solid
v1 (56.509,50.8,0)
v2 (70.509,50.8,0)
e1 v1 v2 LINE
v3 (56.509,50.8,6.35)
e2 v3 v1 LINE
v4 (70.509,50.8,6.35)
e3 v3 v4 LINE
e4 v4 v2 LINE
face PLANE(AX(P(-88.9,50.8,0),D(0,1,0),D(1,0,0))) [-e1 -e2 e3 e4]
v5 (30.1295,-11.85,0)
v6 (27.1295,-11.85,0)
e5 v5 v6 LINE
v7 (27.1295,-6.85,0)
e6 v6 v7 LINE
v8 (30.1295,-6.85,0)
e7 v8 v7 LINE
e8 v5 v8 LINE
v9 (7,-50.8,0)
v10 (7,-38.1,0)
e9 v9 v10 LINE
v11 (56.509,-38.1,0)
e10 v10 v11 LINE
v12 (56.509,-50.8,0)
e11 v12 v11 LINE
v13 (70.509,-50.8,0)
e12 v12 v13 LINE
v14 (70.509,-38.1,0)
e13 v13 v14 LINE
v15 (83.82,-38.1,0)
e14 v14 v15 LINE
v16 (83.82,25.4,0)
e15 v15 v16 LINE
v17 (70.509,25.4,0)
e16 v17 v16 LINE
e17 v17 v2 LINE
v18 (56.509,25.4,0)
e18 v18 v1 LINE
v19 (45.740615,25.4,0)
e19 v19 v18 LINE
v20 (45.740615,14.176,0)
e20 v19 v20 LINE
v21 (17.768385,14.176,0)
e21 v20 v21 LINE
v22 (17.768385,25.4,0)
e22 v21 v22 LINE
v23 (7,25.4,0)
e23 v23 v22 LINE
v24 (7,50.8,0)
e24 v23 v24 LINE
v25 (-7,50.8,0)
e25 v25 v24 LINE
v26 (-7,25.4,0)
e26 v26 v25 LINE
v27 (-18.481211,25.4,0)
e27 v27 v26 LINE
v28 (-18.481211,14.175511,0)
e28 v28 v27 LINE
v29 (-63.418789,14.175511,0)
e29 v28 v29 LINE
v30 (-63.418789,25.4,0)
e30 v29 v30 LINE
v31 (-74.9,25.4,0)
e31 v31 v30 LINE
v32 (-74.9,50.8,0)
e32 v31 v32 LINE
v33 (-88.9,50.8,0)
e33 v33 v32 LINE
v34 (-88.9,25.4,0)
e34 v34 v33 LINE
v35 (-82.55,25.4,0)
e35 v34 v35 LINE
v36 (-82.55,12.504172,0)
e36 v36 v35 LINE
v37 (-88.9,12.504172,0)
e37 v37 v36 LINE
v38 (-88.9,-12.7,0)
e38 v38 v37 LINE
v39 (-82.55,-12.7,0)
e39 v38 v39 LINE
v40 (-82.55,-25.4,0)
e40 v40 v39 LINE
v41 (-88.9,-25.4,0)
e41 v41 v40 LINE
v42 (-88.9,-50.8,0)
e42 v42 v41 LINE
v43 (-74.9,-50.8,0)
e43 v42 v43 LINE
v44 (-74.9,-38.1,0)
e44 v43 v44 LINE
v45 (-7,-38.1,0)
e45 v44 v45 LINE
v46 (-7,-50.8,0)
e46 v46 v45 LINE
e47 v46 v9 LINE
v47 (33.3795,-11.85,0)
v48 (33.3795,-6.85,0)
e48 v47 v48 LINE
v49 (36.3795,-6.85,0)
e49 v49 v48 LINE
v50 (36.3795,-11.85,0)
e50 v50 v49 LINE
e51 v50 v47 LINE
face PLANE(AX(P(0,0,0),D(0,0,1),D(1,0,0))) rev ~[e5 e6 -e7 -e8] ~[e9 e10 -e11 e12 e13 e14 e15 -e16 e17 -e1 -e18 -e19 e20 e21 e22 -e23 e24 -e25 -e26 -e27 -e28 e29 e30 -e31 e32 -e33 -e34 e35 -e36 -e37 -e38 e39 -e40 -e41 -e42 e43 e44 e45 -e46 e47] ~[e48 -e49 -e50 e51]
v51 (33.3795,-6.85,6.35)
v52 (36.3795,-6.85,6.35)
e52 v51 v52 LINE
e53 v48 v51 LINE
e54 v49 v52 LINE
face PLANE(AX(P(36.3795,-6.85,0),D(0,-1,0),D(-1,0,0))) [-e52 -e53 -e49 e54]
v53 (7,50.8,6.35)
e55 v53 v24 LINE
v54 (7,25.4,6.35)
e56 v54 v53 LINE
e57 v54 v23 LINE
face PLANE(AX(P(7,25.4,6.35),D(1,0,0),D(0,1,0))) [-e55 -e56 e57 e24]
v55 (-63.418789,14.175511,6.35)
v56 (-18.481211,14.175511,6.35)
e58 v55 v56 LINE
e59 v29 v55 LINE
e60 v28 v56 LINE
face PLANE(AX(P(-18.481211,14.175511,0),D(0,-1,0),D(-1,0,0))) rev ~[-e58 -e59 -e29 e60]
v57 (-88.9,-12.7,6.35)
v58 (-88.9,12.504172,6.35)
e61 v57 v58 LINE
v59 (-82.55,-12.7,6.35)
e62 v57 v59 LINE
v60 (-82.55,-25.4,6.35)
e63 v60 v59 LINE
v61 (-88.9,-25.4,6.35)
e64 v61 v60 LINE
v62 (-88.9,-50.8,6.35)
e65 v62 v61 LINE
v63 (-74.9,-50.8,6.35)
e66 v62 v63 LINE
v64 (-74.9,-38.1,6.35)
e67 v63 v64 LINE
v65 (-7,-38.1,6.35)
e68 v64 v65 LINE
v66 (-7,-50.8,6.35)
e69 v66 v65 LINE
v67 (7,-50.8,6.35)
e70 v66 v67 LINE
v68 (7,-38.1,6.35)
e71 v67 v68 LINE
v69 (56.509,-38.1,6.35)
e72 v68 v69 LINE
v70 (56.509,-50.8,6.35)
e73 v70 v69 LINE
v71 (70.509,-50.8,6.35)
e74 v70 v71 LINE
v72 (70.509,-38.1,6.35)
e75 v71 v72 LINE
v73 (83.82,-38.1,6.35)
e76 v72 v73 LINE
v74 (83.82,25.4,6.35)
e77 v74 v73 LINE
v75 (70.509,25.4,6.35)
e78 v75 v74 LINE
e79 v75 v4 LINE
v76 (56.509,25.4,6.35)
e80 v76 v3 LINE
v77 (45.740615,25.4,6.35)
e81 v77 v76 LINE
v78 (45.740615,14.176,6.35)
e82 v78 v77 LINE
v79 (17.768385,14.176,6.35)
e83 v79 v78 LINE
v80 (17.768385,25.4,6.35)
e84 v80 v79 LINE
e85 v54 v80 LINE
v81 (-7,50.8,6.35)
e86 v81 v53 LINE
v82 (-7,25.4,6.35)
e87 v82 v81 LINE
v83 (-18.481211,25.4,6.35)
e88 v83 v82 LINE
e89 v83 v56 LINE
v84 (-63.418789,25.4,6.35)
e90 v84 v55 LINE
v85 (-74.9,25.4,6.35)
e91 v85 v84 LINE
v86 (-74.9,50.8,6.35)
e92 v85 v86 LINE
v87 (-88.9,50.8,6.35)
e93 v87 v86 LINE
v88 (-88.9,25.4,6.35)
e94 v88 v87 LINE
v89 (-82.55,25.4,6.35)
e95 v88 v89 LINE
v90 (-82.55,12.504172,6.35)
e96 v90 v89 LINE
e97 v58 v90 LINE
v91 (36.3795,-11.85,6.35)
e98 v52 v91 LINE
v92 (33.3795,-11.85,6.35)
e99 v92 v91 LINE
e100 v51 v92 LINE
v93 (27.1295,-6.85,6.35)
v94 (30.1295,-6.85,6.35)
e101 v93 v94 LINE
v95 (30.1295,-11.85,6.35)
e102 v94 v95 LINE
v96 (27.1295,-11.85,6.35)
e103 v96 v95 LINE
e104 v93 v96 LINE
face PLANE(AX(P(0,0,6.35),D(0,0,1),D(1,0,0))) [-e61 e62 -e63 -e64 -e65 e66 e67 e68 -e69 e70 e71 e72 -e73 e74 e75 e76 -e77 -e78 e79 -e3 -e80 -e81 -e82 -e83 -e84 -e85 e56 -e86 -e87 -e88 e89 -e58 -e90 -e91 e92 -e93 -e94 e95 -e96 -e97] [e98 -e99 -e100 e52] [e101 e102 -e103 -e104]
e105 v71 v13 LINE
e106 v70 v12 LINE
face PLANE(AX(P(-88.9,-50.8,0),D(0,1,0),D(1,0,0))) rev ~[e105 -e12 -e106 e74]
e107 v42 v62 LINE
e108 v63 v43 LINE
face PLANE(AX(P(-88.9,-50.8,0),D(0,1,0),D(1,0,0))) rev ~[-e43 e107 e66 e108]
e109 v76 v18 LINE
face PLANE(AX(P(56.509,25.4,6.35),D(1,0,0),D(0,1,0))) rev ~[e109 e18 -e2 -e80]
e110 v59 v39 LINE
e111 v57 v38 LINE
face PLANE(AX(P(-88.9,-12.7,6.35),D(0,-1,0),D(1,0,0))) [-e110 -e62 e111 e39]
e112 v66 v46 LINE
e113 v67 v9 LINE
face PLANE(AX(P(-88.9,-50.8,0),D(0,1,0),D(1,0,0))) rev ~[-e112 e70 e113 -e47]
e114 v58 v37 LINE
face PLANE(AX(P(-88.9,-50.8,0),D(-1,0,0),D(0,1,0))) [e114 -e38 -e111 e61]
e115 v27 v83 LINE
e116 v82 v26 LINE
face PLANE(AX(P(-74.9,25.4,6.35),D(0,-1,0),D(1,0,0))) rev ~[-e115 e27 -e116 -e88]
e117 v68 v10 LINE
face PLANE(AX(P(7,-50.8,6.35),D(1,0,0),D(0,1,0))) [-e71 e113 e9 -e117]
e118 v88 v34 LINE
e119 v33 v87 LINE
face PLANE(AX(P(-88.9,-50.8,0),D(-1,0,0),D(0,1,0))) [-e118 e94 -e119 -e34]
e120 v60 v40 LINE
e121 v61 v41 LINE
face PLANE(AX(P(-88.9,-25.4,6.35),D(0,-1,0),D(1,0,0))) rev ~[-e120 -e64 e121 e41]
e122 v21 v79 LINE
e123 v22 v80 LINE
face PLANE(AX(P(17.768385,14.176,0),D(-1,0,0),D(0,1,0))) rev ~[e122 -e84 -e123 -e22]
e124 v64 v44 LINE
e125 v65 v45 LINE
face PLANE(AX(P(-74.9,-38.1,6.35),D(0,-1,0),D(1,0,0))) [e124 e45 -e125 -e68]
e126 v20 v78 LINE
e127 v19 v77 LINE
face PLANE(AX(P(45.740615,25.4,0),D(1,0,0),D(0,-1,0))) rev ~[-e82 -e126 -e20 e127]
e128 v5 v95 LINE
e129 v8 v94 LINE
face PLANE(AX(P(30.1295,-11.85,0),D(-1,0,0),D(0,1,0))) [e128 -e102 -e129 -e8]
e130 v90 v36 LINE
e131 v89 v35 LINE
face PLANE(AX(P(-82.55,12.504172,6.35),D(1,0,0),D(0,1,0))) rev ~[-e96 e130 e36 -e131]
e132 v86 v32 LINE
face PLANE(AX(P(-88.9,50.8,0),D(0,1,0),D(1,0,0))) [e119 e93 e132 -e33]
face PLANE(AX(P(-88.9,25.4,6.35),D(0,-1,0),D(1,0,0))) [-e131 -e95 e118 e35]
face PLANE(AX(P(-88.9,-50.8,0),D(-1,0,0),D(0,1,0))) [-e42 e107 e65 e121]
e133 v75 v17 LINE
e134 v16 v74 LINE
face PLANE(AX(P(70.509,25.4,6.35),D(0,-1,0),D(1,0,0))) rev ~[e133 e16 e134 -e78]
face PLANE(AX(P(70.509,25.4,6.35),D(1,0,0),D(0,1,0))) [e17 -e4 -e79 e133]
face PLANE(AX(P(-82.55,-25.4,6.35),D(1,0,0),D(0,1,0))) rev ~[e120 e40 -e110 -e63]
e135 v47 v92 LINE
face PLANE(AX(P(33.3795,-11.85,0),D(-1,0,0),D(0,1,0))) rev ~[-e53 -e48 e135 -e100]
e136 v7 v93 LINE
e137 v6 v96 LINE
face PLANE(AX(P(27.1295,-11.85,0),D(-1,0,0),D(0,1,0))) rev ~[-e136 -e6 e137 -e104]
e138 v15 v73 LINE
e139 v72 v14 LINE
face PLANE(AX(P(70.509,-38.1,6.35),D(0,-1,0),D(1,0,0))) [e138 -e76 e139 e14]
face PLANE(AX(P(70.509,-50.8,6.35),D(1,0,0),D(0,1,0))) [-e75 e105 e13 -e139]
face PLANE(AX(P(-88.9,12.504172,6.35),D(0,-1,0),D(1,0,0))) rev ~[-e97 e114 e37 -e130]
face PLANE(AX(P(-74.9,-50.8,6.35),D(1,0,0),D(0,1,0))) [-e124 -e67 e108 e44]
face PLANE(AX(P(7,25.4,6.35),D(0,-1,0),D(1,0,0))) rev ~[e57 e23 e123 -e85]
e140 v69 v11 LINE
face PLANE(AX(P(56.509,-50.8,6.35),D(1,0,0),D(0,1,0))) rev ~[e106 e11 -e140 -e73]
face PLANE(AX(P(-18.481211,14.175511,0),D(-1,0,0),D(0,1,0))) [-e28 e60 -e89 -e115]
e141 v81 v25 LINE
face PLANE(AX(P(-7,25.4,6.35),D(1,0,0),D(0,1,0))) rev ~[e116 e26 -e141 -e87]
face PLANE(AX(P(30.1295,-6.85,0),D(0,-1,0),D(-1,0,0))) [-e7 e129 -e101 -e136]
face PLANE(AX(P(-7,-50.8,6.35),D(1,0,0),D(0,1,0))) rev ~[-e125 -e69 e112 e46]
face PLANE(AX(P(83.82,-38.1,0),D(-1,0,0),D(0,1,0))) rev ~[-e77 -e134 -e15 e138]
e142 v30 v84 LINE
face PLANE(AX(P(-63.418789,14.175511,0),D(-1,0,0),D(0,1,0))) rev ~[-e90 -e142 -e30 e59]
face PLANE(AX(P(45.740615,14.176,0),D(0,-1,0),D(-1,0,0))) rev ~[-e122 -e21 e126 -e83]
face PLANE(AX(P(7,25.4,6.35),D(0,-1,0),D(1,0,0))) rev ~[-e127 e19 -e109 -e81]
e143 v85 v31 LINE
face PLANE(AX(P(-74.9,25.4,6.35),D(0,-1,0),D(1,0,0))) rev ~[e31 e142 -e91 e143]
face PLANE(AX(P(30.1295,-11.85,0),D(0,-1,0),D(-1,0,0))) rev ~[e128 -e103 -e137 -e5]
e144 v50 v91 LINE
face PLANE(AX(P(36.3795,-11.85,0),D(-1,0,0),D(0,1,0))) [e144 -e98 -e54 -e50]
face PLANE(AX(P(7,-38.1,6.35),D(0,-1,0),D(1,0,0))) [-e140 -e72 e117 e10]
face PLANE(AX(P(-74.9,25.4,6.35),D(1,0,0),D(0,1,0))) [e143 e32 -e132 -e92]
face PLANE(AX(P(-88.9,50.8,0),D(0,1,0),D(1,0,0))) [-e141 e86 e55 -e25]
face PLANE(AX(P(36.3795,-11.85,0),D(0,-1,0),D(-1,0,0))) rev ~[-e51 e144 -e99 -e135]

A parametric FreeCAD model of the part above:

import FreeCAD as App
import Part
import Sketcher
Q = App.Units.Quantity


def add_polygon(sketch, points):
    """Adds a closed chain of lines whose ends are joined by coincident constraints."""
    first, n = sketch.GeometryCount, len(points)
    for a, b in zip(points, points[1:] + points[:1]):
        sketch.addGeometry(Part.LineSegment(App.Vector(*a, 0), App.Vector(*b, 0)), False)
    for i in range(n):
        sketch.addConstraint(Sketcher.Constraint("Coincident", first + i, 2, first + (i + 1) % n, 1))

doc = App.newDocument("Part")
body = doc.addObject("PartDesign::Body", "Body")

# Sketch on XY plane
sketch1 = doc.addObject("Sketcher::SketchObject", "Sketch")
body.addObject(sketch1)
sketch1.AttachmentSupport = (doc.XY_Plane, [""])
sketch1.MapMode = "FlatFace"
add_polygon(sketch1, [(-88.9, 50.8), (-88.9, -50.8), (88.9, -50.8), (88.9, 50.8)])  # lines 0-3
sketch1.addConstraint(Sketcher.Constraint("Vertical", 0))
sketch1.addConstraint(Sketcher.Constraint("Horizontal", 1))
sketch1.addConstraint(Sketcher.Constraint("Vertical", 2))
sketch1.addConstraint(Sketcher.Constraint("Horizontal", 3))
sketch1.addConstraint(Sketcher.Constraint("Symmetric", 0, 2, 2, 2, -1, 1))
sketch1.addConstraint(Sketcher.Constraint("DistanceX", 1, 1, 1, 2, Q("7 in")))
sketch1.addConstraint(Sketcher.Constraint("DistanceY", 0, 2, 0, 1, Q("4 in")))
pad1 = doc.addObject("PartDesign::Pad", "Pad")
body.addObject(pad1)
pad1.Profile = sketch1
pad1.Length = Q("0.25 in")

# Sketch on XY plane
sketch2 = doc.addObject("Sketcher::SketchObject", "Sketch001")
body.addObject(sketch2)
sketch2.AttachmentSupport = (doc.XY_Plane, [""])
sketch2.MapMode = "FlatFace"
sketch2.AttachmentOffset = App.Placement(App.Vector(0, 0, 0.25 * 25.4), App.Rotation())
add_polygon(sketch2, [(-88.9, 25.4), (-88.9, 12.504172), (-82.55, 12.504172), (-82.55, 25.4)])  # lines 0-3
add_polygon(sketch2, [(-74.9, 50.8), (-74.9, 25.4), (-7, 25.4), (-7, 50.8)])  # lines 4-7
add_polygon(sketch2, [(-88.9, -12.7), (-88.9, -25.4), (-82.55, -25.4), (-82.55, -12.7)])  # lines 8-11
add_polygon(sketch2, [(7, 50.8), (7, 25.4), (56.509, 25.4), (56.509, 50.8)])  # lines 12-15
add_polygon(sketch2, [(70.509, 50.8), (70.509, 25.4), (88.9, 25.4), (88.9, 50.8)])  # lines 16-19
add_polygon(sketch2, [(-74.9, -38.1), (-74.9, -50.8), (-7, -50.8), (-7, -38.1)])  # lines 20-23
add_polygon(sketch2, [(7, -38.1), (7, -50.8), (56.509, -50.8), (56.509, -38.1)])  # lines 24-27
add_polygon(sketch2, [(70.509, -38.1), (70.509, -50.8), (88.9, -50.8), (88.9, -38.1)])  # lines 28-31
sketch2.addConstraint(Sketcher.Constraint("Vertical", 0))
sketch2.addConstraint(Sketcher.Constraint("Horizontal", 1))
sketch2.addConstraint(Sketcher.Constraint("Vertical", 2))
sketch2.addConstraint(Sketcher.Constraint("Horizontal", 3))
sketch2.addConstraint(Sketcher.Constraint("Vertical", 4))
sketch2.addConstraint(Sketcher.Constraint("Horizontal", 5))
sketch2.addConstraint(Sketcher.Constraint("Vertical", 6))
sketch2.addConstraint(Sketcher.Constraint("Horizontal", 7))
sketch2.addConstraint(Sketcher.Constraint("Vertical", 8))
sketch2.addConstraint(Sketcher.Constraint("Horizontal", 9))
sketch2.addConstraint(Sketcher.Constraint("Vertical", 10))
sketch2.addConstraint(Sketcher.Constraint("Horizontal", 11))
sketch2.addConstraint(Sketcher.Constraint("Vertical", 12))
sketch2.addConstraint(Sketcher.Constraint("Horizontal", 13))
sketch2.addConstraint(Sketcher.Constraint("Vertical", 14))
sketch2.addConstraint(Sketcher.Constraint("Horizontal", 15))
sketch2.addConstraint(Sketcher.Constraint("Vertical", 16))
sketch2.addConstraint(Sketcher.Constraint("Horizontal", 17))
sketch2.addConstraint(Sketcher.Constraint("Vertical", 18))
sketch2.addConstraint(Sketcher.Constraint("Horizontal", 19))
sketch2.addConstraint(Sketcher.Constraint("Vertical", 20))
sketch2.addConstraint(Sketcher.Constraint("Horizontal", 21))
sketch2.addConstraint(Sketcher.Constraint("Vertical", 22))
sketch2.addConstraint(Sketcher.Constraint("Horizontal", 23))
sketch2.addConstraint(Sketcher.Constraint("Vertical", 24))
sketch2.addConstraint(Sketcher.Constraint("Horizontal", 25))
sketch2.addConstraint(Sketcher.Constraint("Vertical", 26))
sketch2.addConstraint(Sketcher.Constraint("Horizontal", 27))
sketch2.addConstraint(Sketcher.Constraint("Vertical", 28))
sketch2.addConstraint(Sketcher.Constraint("Horizontal", 29))
sketch2.addConstraint(Sketcher.Constraint("Vertical", 30))
sketch2.addConstraint(Sketcher.Constraint("Horizontal", 31))
sketch2.addConstraint(Sketcher.Constraint("Symmetric", 8, 2, 17, 2, -1, 1))
sketch2.addConstraint(Sketcher.Constraint("Symmetric", 15, 2, 21, 2, -1, 1))
sketch2.addConstraint(Sketcher.Constraint("Symmetric", 6, 2, 24, 2, -1, 1))
sketch2.addConstraint(Sketcher.Constraint("Symmetric", 5, 2, 12, 2, -2))
sketch2.addConstraint(Sketcher.Constraint("Symmetric", 3, 2, 17, 2, -2))
sketch2.addConstraint(Sketcher.Constraint("Symmetric", 7, 2, 20, 2, -1))
sketch2.addConstraint(Sketcher.Constraint("Symmetric", 19, 2, 28, 2, -1))
sketch2.addConstraint(Sketcher.Constraint("Horizontal", 3, 2, 4, 2))
sketch2.addConstraint(Sketcher.Constraint("Horizontal", 15, 2, 18, 2))
sketch2.addConstraint(Sketcher.Constraint("Horizontal", 23, 2, 26, 2))
sketch2.addConstraint(Sketcher.Constraint("Horizontal", 27, 2, 30, 2))
sketch2.addConstraint(Sketcher.Constraint("Vertical", 2, 2, 9, 2))
sketch2.addConstraint(Sketcher.Constraint("Vertical", 14, 2, 25, 2))
sketch2.addConstraint(Sketcher.Constraint("Vertical", 18, 2, 29, 2))
sketch2.addConstraint(Sketcher.Constraint("Equal", 10, 20))
sketch2.addConstraint(Sketcher.Constraint("DistanceY", 4, 2, 4, 1, Q("1 in")))
sketch2.addConstraint(Sketcher.Constraint("DistanceY", 8, 2, 8, 1, Q("0.5 in")))
sketch2.addConstraint(Sketcher.Constraint("DistanceY", -1, 1, 2, 2, Q("1 in")))
sketch2.addConstraint(Sketcher.Constraint("DistanceX", 1, 1, 1, 2, Q("0.25 in")))
sketch2.addConstraint(Sketcher.Constraint("DistanceX", 0, 2, -1, 1, Q("3.5 in")))
sketch2.addConstraint(Sketcher.Constraint("DistanceX", 5, 1, 5, 2, 67.9))
sketch2.addConstraint(Sketcher.Constraint("DistanceX", 13, 1, 13, 2, 49.509))
sketch2.addConstraint(Sketcher.Constraint("DistanceX", 17, 1, 17, 2, 18.391))
sketch2.addConstraint(Sketcher.Constraint("DistanceX", 4, 2, -1, 1, 74.9))
sketch2.addConstraint(Sketcher.Constraint("DistanceY", 0, 2, 0, 1, 12.895828))
pocket1 = doc.addObject("PartDesign::Pocket", "Pocket")
body.addObject(pocket1)
pocket1.Profile = sketch2
pocket1.Type = "ThroughAll"

# Sketch on XY plane
sketch3 = doc.addObject("Sketcher::SketchObject", "Sketch002")
body.addObject(sketch3)
sketch3.AttachmentSupport = (doc.XY_Plane, [""])
sketch3.MapMode = "FlatFace"
add_polygon(sketch3, [(-18.481211, 25.4), (-18.481211, 14.175511), (-63.418789, 14.175511), (-63.418789, 25.4)])  # lines 0-3
add_polygon(sketch3, [(88.9, 25.4), (88.9, -38.1), (83.82, -38.1), (83.82, 25.4)])  # lines 4-7
add_polygon(sketch3, [(17.768385, 25.4), (45.740615, 25.4), (45.740615, 14.176), (17.768385, 14.176)])  # lines 8-11
sketch3.addConstraint(Sketcher.Constraint("Vertical", 0))
sketch3.addConstraint(Sketcher.Constraint("Horizontal", 1))
sketch3.addConstraint(Sketcher.Constraint("Vertical", 2))
sketch3.addConstraint(Sketcher.Constraint("Horizontal", 3))
sketch3.addConstraint(Sketcher.Constraint("Vertical", 4))
sketch3.addConstraint(Sketcher.Constraint("Horizontal", 5))
sketch3.addConstraint(Sketcher.Constraint("Vertical", 6))
sketch3.addConstraint(Sketcher.Constraint("Horizontal", 7))
sketch3.addConstraint(Sketcher.Constraint("Horizontal", 8))
sketch3.addConstraint(Sketcher.Constraint("Vertical", 9))
sketch3.addConstraint(Sketcher.Constraint("Horizontal", 10))
sketch3.addConstraint(Sketcher.Constraint("Vertical", 11))
sketch3.addConstraint(Sketcher.Constraint("Horizontal", 3, 2, 6, 2))
sketch3.addConstraint(Sketcher.Constraint("Horizontal", 7, 2, 8, 2))
sketch3.addConstraint(Sketcher.Constraint("DistanceX", 5, 2, 5, 1, Q("0.2 in")))
sketch3.addConstraint(Sketcher.Constraint("DistanceY", 4, 2, 4, 1, Q("2.5 in")))
sketch3.addConstraint(Sketcher.Constraint("DistanceY", -1, 1, 2, 2, Q("1 in")))
sketch3.addConstraint(Sketcher.Constraint("DistanceX", -1, 1, 4, 2, Q("3.5 in")))
sketch3.addConstraint(Sketcher.Constraint("DistanceY", 9, 2, 9, 1, 11.224))
sketch3.addConstraint(Sketcher.Constraint("DistanceX", 8, 1, 8, 2, 27.972229))
sketch3.addConstraint(Sketcher.Constraint("DistanceY", 0, 2, 0, 1, 11.224489))
sketch3.addConstraint(Sketcher.Constraint("DistanceX", 1, 2, 1, 1, 44.937578))
sketch3.addConstraint(Sketcher.Constraint("DistanceX", 0, 2, -1, 1, 18.481211))
sketch3.addConstraint(Sketcher.Constraint("DistanceX", -1, 1, 8, 2, 45.740615))
pocket2 = doc.addObject("PartDesign::Pocket", "Pocket001")
body.addObject(pocket2)
pocket2.Profile = sketch3
pocket2.Type = "ThroughAll"
pocket2.Reversed = True

# Sketch on XY plane
sketch4 = doc.addObject("Sketcher::SketchObject", "Sketch003")
body.addObject(sketch4)
sketch4.AttachmentSupport = (doc.XY_Plane, [""])
sketch4.MapMode = "FlatFace"
add_polygon(sketch4, [(30.1295, -6.85), (30.1295, -11.85), (27.1295, -11.85), (27.1295, -6.85)])  # lines 0-3
add_polygon(sketch4, [(36.3795, -6.85), (36.3795, -11.85), (33.3795, -11.85), (33.3795, -6.85)])  # lines 4-7
sketch4.addConstraint(Sketcher.Constraint("Vertical", 0))
sketch4.addConstraint(Sketcher.Constraint("Horizontal", 1))
sketch4.addConstraint(Sketcher.Constraint("Vertical", 2))
sketch4.addConstraint(Sketcher.Constraint("Horizontal", 3))
sketch4.addConstraint(Sketcher.Constraint("Vertical", 4))
sketch4.addConstraint(Sketcher.Constraint("Horizontal", 5))
sketch4.addConstraint(Sketcher.Constraint("Vertical", 6))
sketch4.addConstraint(Sketcher.Constraint("Horizontal", 7))
sketch4.addConstraint(Sketcher.Constraint("Horizontal", 1, 2, 4, 2))
sketch4.addConstraint(Sketcher.Constraint("Horizontal", 3, 2, 6, 2))
sketch4.addConstraint(Sketcher.Constraint("Equal", 3, 5))
sketch4.addConstraint(Sketcher.Constraint("DistanceX", 1, 2, 1, 1, 3.0))
sketch4.addConstraint(Sketcher.Constraint("DistanceY", 0, 2, 0, 1, 5.0))
sketch4.addConstraint(Sketcher.Constraint("DistanceX", -1, 1, 0, 2, 30.1295))
sketch4.addConstraint(Sketcher.Constraint("DistanceY", 0, 2, -1, 1, 11.85))
sketch4.addConstraint(Sketcher.Constraint("DistanceX", -1, 1, 4, 2, 36.3795))
pocket3 = doc.addObject("PartDesign::Pocket", "Pocket002")
body.addObject(pocket3)
pocket3.Profile = sketch4
pocket3.Type = "ThroughAll"
pocket3.Reversed = True

doc.recompute()
